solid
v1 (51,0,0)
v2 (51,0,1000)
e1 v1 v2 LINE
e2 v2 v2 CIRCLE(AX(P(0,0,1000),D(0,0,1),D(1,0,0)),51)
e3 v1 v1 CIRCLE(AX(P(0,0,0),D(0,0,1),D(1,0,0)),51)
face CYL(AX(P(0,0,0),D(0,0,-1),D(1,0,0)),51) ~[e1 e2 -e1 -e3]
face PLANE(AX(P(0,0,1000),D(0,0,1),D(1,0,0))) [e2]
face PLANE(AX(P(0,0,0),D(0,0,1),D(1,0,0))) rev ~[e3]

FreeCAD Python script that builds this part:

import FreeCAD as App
import Part
import Sketcher

doc = App.newDocument("Part")
body = doc.addObject("PartDesign::Body", "Body")

sketch1 = body.newObject("Sketcher::SketchObject", "Sketch")
sketch1.AttachmentSupport = (doc.getObject("XY_Plane"), [""])
sketch1.MapMode = "FlatFace"
sketch1.addGeometry(Part.Circle(App.Vector(0, 0, 0), App.Vector(0, 0, 1), 51), False)
sketch1.addConstraint([
    Sketcher.Constraint("Coincident", 0, 3, -1, 1),
    Sketcher.Constraint("Diameter", 0, 102.0),
])
pad1 = body.newObject("PartDesign::Pad", "Pad")
pad1.Profile = sketch1
pad1.Length = 1000

doc.recompute()
